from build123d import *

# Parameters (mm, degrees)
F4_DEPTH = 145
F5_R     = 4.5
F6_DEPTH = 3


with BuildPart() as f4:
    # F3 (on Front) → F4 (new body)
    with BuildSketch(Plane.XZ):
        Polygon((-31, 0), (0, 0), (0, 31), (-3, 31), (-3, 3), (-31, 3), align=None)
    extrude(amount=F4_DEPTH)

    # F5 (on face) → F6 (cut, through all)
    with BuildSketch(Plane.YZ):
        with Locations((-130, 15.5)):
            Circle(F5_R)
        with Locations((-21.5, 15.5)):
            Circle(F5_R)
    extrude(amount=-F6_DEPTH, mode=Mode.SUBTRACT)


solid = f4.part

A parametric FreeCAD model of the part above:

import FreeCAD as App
import Part
import Sketcher
from FreeCAD import Vector
Q = App.Units.Quantity


def add_polygon(sketch, points):
    """Adds a closed chain of lines whose ends are joined by coincident constraints."""
    first, n = sketch.GeometryCount, len(points)
    for a, b in zip(points, points[1:] + points[:1]):
        sketch.addGeometry(Part.LineSegment(App.Vector(*a, 0), App.Vector(*b, 0)), False)
    for i in range(n):
        sketch.addConstraint(Sketcher.Constraint("Coincident", first + i, 2, first + (i + 1) % n, 1))

doc = App.newDocument("Part")
body = doc.addObject("PartDesign::Body", "Body")

sketch1 = body.newObject("Sketcher::SketchObject", "Sketch")
sketch1.AttachmentSupport = (doc.getObject("XZ_Plane"), [""])
sketch1.MapMode = "FlatFace"
add_polygon(sketch1, [(-31, 0), (0, 0), (0, 31), (-3, 31), (-3, 3), (-31, 3)])
sketch1.addConstraint([
    Sketcher.Constraint("Horizontal", 0),
    Sketcher.Constraint("Vertical", 1),
    Sketcher.Constraint("Horizontal", 2),
    Sketcher.Constraint("Vertical", 3),
    Sketcher.Constraint("Horizontal", 4),
    Sketcher.Constraint("Vertical", 5),
    Sketcher.Constraint("Coincident", 0, 2, -1, 1),
    Sketcher.Constraint("Equal", 0, 1),
    Sketcher.Constraint("Equal", 4, 3),
    Sketcher.Constraint("DistanceX", 0, 1, 0, 2, Q("31 mm")),
    Sketcher.Constraint("DistanceX", 2, 2, 2, 1, Q("3 mm")),
])
pad1 = body.newObject("PartDesign::Pad", "Pad")
pad1.Profile = sketch1
pad1.Length = 145

sketch2 = body.newObject("Sketcher::SketchObject", "Sketch001")
sketch2.AttachmentSupport = (doc.getObject("YZ_Plane"), [""])
sketch2.MapMode = "FlatFace"
sketch2.addGeometry([
    Part.Circle(Vector(-130, 15.5, 0), Vector(0, 0, 1), 4.5),
    Part.Circle(Vector(-21.5, 15.5, 0), Vector(0, 0, 1), 4.5),
], False)
sketch2.addConstraint([
    Sketcher.Constraint("Equal", 0, 1),
    Sketcher.Constraint("Horizontal", 0, 3, 1, 3),
    Sketcher.Constraint("Diameter", 0, Q("9 mm")),
    Sketcher.Constraint("DistanceX", 0, 3, -1, 1, Q("130 mm")),
    Sketcher.Constraint("DistanceY", -1, 1, 0, 3, Q("15.5 mm")),
    Sketcher.Constraint("DistanceX", 1, 3, -1, 1, Q("21.5 mm")),
])
pocket1 = body.newObject("PartDesign::Pocket", "Pocket")
pocket1.Profile = sketch2
pocket1.Type = "ThroughAll"

doc.recompute()
